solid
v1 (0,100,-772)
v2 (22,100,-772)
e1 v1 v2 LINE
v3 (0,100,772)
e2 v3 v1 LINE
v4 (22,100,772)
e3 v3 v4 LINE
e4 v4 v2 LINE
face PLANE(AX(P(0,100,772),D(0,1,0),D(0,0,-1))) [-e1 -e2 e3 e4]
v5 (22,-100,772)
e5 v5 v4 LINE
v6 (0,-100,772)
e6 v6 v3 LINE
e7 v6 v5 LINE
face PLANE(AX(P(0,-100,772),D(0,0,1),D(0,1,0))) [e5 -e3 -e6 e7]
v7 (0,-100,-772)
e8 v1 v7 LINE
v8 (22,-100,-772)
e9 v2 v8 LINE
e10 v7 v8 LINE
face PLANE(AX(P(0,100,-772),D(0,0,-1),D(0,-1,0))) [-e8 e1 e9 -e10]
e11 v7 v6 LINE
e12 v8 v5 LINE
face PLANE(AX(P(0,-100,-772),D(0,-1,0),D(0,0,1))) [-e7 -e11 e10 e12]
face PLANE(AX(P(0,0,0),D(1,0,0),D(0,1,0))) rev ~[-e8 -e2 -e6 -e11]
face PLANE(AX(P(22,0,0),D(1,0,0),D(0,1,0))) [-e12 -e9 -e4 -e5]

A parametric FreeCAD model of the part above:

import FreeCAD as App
import Part
import Sketcher
Q = App.Units.Quantity

doc = App.newDocument("Part")
body = doc.addObject("PartDesign::Body", "Body")

# Sketch on YZ plane
sketch1 = body.newObject("Sketcher::SketchObject", "Sketch")
sketch1.AttachmentSupport = (doc.getObject("YZ_Plane"), [""])
sketch1.MapMode = "FlatFace"
sketch1.addGeometry([
    Part.LineSegment(App.Vector(100, 772, 0), App.Vector(-100, 772, 0)),
    Part.LineSegment(App.Vector(-100, 772, 0), App.Vector(-100, -772, 0)),
    Part.LineSegment(App.Vector(-100, -772, 0), App.Vector(100, -772, 0)),
    Part.LineSegment(App.Vector(100, -772, 0), App.Vector(100, 772, 0)),
], False)
sketch1.addConstraint([
    Sketcher.Constraint("Coincident", 0, 2, 1, 1),
    Sketcher.Constraint("Coincident", 1, 2, 2, 1),
    Sketcher.Constraint("Coincident", 2, 2, 3, 1),
    Sketcher.Constraint("Coincident", 3, 2, 0, 1),
    Sketcher.Constraint("Horizontal", 0),
    Sketcher.Constraint("Vertical", 1),
    Sketcher.Constraint("Horizontal", 2),
    Sketcher.Constraint("Vertical", 3),
    Sketcher.Constraint("Symmetric", 0, 2, 2, 2, -1, 1),
    Sketcher.Constraint("DistanceX", 0, 2, 0, 1, Q("200 mm")),
    Sketcher.Constraint("DistanceY", 1, 2, 1, 1, Q("1544 mm")),
])
pad1 = body.newObject("PartDesign::Pad", "Pad")
pad1.Profile = sketch1
pad1.Length = 22

doc.recompute()
